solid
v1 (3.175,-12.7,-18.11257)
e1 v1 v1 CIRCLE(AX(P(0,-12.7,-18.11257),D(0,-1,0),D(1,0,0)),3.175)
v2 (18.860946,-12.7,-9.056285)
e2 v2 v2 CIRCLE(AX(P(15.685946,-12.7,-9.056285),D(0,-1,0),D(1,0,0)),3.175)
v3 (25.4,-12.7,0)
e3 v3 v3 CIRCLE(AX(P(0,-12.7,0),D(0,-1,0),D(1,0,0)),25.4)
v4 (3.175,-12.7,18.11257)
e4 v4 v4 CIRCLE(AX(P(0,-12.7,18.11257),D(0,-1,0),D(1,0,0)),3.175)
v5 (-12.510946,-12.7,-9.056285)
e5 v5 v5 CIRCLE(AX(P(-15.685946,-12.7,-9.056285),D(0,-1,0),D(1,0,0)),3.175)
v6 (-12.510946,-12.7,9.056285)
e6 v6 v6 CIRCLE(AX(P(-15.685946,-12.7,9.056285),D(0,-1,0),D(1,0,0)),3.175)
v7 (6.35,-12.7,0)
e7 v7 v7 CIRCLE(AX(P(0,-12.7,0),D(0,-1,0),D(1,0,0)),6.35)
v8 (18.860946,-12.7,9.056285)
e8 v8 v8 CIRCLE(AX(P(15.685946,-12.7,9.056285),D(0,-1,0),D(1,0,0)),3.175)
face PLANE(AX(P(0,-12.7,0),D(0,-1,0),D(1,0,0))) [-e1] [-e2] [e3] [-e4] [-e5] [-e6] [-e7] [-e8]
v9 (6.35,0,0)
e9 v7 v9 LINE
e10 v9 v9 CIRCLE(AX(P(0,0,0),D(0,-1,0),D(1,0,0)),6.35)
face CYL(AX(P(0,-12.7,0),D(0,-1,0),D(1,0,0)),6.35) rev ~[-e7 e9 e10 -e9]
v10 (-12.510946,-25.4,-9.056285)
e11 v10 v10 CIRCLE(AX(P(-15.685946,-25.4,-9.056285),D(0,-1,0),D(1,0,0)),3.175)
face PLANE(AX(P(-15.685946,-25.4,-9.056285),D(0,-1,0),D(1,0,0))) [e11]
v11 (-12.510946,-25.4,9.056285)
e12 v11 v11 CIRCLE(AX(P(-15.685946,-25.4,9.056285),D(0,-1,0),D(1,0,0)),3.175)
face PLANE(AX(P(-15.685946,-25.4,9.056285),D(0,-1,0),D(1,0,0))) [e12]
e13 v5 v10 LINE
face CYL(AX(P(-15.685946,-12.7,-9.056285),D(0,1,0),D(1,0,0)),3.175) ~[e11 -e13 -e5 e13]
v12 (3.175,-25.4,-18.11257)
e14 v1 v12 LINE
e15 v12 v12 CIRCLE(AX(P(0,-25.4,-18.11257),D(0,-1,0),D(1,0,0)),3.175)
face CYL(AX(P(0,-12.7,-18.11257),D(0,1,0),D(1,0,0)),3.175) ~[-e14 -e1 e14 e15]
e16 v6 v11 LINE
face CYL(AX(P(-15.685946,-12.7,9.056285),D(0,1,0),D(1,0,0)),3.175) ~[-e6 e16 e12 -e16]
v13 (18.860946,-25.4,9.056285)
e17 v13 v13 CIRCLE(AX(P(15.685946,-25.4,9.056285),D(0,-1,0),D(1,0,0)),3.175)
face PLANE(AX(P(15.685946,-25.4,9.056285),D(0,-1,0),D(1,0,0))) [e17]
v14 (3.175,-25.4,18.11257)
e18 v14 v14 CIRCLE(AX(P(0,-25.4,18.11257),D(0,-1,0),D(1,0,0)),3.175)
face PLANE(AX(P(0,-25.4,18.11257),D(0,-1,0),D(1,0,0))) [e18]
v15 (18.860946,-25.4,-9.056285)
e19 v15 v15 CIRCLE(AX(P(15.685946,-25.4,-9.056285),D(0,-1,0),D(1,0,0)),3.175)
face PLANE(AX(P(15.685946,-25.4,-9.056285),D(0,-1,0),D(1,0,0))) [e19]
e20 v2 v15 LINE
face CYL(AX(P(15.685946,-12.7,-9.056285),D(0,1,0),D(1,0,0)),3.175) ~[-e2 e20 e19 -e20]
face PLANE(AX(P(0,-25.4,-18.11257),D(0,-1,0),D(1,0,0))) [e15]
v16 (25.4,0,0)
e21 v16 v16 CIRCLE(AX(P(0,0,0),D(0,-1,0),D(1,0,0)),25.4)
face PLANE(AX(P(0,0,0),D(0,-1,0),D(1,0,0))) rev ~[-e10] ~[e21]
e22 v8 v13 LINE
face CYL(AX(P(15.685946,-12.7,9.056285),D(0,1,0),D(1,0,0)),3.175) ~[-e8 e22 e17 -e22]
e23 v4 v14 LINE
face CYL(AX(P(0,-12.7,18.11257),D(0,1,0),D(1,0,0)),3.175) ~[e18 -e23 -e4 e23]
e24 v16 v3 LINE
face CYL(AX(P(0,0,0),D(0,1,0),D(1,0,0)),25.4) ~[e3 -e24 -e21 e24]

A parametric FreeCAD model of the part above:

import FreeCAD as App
import Part
import Sketcher

V = App.Vector
Q = App.Units.Quantity

doc = App.newDocument("Part")
body = doc.addObject("PartDesign::Body", "Body")

sketch1 = body.newObject("Sketcher::SketchObject", "Sketch")
sketch1.AttachmentSupport = (doc.getObject("XZ_Plane"), [""])
sketch1.MapMode = "FlatFace"
sketch1.addGeometry(Part.Circle(V(0, 0, 0), V(0, 0, 1), 25), False)
sketch1.addConstraint([
    Sketcher.Constraint("Coincident", 0, 3, -1, 1),
    Sketcher.Constraint("Diameter", 0, Q("2 in")),
])
pad1 = body.newObject("PartDesign::Pad", "Pad")
pad1.Profile = sketch1
pad1.Length = Q("0.5 in")

sketch2 = body.newObject("Sketcher::SketchObject", "Sketch001")
sketch2.AttachmentSupport = (doc.getObject("XZ_Plane"), [""])
sketch2.MapMode = "FlatFace"
sketch2.AttachmentOffset = App.Placement(V(0, 0, 0.5 * 25.4), App.Rotation())
sketch2.addGeometry(Part.Circle(V(0, 0, 0), V(0, 0, 1), 6), False)
sketch2.addConstraint([
    Sketcher.Constraint("Coincident", 0, 3, -1, 1),
    Sketcher.Constraint("Diameter", 0, Q("0.5 in")),
])
pocket1 = body.newObject("PartDesign::Pocket", "Pocket")
pocket1.Profile = sketch2
pocket1.Length = Q("2 in")

sketch3 = body.newObject("Sketcher::SketchObject", "Sketch002")
sketch3.AttachmentSupport = (doc.getObject("XZ_Plane"), [""])
sketch3.MapMode = "FlatFace"
sketch3.AttachmentOffset = App.Placement(V(0, 0, 0.5 * 25.4), App.Rotation())
sketch3.addGeometry([
    Part.Circle(V(0, 18.1, 0), V(0, 0, 1), 3.2),
    Part.Circle(V(-15.7, 9.1, 0), V(0, 0, 1), 3.2),
    Part.Circle(V(-15.7, -9.1, 0), V(0, 0, 1), 3.2),
    Part.Circle(V(0, -18.1, 0), V(0, 0, 1), 3.2),
    Part.Circle(V(15.7, -9.1, 0), V(0, 0, 1), 3.2),
    Part.Circle(V(15.7, 9.1, 0), V(0, 0, 1), 3.2),
], False)
sketch3.addConstraint([
    Sketcher.Constraint("Equal", 0, 1),
    Sketcher.Constraint("Equal", 1, 2),
    Sketcher.Constraint("Equal", 2, 3),
    Sketcher.Constraint("Equal", 3, 4),
    Sketcher.Constraint("Equal", 4, 5),
    Sketcher.Constraint("Symmetric", 0, 3, 3, 3, -1, 1),
    Sketcher.Constraint("Symmetric", 1, 3, 4, 3, -1, 1),
    Sketcher.Constraint("Symmetric", 2, 3, 5, 3, -1, 1),
    Sketcher.Constraint("Symmetric", 2, 3, 4, 3, -2),
    Sketcher.Constraint("PointOnObject", 0, 3, -2),
    Sketcher.Constraint("Diameter", 0, Q("0.25 in")),
    Sketcher.Constraint("DistanceY", -1, 1, 0, 3, 18.11257),
    Sketcher.Constraint("DistanceY", 2, 3, 1, 3, 18.11257),
    Sketcher.Constraint("DistanceX", 2, 3, 4, 3, 31.371892),
])
pad2 = body.newObject("PartDesign::Pad", "Pad001")
pad2.Profile = sketch3
pad2.Length = Q("0.5 in")

doc.recompute()
